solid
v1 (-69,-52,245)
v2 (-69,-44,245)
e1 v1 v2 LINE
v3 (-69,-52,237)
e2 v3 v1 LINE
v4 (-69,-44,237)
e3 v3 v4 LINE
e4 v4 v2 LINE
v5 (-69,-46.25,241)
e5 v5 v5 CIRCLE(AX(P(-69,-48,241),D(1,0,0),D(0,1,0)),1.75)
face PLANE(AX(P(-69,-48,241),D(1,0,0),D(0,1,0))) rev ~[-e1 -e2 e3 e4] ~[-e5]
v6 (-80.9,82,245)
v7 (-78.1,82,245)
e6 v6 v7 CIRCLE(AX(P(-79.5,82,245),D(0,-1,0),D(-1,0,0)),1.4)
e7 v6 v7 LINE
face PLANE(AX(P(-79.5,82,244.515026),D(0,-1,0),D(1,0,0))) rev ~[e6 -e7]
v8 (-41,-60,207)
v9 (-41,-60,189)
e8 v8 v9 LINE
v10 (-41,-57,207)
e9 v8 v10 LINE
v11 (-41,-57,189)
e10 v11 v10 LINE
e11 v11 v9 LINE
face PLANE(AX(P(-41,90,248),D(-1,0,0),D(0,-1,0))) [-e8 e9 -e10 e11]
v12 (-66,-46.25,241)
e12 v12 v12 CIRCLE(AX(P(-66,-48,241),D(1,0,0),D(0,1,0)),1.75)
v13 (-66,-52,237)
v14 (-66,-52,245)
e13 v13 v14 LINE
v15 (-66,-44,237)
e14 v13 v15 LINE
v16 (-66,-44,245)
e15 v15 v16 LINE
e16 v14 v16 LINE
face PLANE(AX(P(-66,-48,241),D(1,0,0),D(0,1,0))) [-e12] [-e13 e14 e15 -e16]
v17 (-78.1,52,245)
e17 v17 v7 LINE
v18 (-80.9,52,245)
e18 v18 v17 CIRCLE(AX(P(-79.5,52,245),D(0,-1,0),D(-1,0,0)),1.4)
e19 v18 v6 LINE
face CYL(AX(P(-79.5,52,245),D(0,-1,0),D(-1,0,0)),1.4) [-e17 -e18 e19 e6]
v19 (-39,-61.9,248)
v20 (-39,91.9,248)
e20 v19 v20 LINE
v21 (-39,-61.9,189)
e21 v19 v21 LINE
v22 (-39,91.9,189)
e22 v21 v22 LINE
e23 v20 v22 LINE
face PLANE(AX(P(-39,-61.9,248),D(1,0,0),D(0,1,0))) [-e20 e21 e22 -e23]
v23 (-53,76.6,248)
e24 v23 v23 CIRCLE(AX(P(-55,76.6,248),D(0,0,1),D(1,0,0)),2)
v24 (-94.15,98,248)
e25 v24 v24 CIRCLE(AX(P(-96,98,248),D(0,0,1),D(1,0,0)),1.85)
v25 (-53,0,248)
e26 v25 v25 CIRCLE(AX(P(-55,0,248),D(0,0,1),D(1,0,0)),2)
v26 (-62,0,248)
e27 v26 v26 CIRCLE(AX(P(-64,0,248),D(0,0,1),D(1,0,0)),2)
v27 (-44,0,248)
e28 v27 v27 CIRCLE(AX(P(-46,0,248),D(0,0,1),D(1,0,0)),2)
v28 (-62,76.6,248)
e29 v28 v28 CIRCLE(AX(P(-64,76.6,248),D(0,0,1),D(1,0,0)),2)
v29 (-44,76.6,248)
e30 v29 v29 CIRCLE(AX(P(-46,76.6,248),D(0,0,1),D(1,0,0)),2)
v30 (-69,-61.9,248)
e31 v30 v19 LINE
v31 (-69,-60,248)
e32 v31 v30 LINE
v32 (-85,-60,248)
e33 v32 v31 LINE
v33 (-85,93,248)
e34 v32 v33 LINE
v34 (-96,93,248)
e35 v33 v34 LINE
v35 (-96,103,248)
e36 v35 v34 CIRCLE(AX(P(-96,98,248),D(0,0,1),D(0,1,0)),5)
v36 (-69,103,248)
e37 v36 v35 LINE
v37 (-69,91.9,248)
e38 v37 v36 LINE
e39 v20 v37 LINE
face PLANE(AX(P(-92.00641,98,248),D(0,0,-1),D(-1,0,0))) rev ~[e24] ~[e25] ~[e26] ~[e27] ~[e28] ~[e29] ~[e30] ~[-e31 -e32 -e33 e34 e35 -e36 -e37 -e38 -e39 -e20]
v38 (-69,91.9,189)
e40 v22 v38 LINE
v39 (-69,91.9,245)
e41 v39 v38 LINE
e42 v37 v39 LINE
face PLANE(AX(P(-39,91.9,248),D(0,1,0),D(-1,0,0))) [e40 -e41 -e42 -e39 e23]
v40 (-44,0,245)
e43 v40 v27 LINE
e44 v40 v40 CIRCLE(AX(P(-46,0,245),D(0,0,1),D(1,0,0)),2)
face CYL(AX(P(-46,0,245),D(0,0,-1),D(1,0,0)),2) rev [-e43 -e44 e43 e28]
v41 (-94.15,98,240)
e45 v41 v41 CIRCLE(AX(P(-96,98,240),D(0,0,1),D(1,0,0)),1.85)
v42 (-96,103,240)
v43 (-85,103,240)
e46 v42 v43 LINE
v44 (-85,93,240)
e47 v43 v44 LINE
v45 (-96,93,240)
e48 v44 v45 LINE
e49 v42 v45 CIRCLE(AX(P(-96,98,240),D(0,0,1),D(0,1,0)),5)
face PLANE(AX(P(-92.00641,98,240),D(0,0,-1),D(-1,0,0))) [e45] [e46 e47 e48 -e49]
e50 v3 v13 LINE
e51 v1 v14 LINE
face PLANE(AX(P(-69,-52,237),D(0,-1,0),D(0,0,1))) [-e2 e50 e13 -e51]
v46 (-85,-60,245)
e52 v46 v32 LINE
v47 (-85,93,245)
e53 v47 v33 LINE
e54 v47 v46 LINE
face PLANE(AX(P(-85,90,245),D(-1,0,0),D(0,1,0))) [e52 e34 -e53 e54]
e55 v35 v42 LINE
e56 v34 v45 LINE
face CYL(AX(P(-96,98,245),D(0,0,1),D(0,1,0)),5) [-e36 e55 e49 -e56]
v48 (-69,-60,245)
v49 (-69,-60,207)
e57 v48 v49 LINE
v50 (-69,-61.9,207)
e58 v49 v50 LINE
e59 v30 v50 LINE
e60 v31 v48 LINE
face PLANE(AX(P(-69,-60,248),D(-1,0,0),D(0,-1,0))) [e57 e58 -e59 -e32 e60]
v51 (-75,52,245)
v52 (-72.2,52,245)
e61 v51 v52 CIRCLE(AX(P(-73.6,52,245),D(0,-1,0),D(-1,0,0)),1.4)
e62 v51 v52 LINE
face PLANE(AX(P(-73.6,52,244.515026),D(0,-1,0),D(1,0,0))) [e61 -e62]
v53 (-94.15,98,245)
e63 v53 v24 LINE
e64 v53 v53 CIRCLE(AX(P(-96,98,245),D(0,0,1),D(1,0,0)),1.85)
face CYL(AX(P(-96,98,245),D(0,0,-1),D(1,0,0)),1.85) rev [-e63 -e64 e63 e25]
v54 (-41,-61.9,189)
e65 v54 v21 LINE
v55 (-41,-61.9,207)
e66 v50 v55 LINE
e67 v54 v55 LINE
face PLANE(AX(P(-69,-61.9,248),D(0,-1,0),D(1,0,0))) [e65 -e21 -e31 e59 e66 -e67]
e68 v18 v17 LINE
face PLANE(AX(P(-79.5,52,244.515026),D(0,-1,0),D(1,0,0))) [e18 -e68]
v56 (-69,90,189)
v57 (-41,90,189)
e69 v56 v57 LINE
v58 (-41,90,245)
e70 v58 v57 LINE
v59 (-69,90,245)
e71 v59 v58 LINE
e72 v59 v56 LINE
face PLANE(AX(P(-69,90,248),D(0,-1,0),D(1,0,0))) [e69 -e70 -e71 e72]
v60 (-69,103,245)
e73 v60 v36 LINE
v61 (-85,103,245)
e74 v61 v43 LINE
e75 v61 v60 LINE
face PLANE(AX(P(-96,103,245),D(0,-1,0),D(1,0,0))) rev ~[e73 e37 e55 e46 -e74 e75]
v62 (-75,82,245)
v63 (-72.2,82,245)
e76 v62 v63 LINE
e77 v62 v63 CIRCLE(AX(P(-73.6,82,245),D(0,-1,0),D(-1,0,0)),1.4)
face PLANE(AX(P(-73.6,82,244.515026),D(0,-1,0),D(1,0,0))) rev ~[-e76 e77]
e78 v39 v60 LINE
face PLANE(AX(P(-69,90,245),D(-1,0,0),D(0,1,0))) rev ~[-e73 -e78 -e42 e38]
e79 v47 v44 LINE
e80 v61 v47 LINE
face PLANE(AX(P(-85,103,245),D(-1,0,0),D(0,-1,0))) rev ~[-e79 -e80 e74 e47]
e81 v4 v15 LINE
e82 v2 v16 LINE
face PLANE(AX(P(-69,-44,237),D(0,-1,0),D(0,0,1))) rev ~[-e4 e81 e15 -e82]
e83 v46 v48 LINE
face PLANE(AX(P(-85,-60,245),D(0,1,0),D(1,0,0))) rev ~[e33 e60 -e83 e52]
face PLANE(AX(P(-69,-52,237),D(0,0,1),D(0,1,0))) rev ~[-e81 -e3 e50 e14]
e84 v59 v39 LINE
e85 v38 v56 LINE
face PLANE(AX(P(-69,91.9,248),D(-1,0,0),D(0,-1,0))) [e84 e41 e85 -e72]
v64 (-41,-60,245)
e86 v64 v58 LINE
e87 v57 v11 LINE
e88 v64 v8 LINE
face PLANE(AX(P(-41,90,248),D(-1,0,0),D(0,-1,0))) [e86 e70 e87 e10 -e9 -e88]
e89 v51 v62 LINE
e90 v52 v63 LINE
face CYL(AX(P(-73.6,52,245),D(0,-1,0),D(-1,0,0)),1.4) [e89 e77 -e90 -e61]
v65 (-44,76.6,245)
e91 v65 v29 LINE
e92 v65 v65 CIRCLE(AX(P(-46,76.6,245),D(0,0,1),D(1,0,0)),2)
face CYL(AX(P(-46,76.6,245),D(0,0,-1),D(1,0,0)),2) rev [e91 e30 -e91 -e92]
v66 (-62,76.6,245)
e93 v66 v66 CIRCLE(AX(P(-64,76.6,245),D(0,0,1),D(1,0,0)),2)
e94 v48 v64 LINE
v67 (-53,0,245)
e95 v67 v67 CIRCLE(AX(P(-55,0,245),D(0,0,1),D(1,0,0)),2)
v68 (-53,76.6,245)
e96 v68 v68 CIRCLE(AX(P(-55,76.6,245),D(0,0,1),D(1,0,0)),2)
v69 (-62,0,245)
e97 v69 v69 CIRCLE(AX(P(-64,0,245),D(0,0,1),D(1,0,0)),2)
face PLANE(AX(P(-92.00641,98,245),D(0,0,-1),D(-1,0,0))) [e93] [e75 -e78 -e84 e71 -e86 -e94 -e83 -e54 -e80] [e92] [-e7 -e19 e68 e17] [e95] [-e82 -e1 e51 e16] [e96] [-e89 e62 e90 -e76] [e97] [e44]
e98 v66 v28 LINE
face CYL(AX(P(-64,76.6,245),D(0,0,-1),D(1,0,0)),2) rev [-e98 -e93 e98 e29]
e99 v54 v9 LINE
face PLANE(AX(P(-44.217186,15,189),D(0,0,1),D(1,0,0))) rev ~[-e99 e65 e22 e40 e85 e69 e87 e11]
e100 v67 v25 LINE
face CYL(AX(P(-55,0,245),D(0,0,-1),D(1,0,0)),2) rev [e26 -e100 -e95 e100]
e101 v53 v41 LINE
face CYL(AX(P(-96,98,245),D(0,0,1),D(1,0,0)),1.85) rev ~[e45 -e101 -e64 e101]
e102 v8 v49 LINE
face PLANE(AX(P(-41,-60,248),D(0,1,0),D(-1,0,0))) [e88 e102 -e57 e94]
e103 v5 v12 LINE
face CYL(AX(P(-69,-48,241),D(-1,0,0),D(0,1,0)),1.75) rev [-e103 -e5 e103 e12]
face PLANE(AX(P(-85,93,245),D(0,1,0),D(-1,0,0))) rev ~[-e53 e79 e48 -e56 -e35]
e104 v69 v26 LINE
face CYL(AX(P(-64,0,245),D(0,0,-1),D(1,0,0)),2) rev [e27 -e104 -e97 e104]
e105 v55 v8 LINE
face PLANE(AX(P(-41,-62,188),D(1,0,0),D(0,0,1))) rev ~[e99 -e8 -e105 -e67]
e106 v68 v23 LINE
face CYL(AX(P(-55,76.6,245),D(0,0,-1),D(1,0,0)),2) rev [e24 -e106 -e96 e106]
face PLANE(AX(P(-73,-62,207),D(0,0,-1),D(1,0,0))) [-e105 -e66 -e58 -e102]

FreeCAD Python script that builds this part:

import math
import FreeCAD as App
import Part
import Sketcher
from FreeCAD import Vector
Q = App.Units.Quantity


def add_polygon(sketch, points):
    """Adds a closed chain of lines whose ends are joined by coincident constraints."""
    first, n = sketch.GeometryCount, len(points)
    for a, b in zip(points, points[1:] + points[:1]):
        sketch.addGeometry(Part.LineSegment(App.Vector(*a, 0), App.Vector(*b, 0)), False)
    for i in range(n):
        sketch.addConstraint(Sketcher.Constraint("Coincident", first + i, 2, first + (i + 1) % n, 1))

doc = App.newDocument("Part")
params = doc.addObject("Spreadsheet::Sheet", "Params")
for row, (alias, value) in enumerate([
    ("sketch1_diameter", "3.5 mm"),
    ("sketch1_width", "8 mm"),
    ("pad1_length", "3 mm"),
    ("sketch2_diameter", "4 mm"),
    ("sketch2_width", "44 mm"),
    ("sketch2_height", "150 mm"),
    ("pad2_length", "3 mm"),
    ("sketch3_width", "28 mm"),
    ("sketch3_width2", "30 mm"),
    ("sketch3_height", "150 mm"),
    ("sketch3_height2", "1.9 mm"),
    ("pad3_length", "59 mm"),
    ("sketch4_radius", "1.4 mm"),
    ("pad4_length", "30 mm"),
    ("sketch5_width", "16 mm"),
    ("sketch5_height", "13 mm"),
    ("pad5_length", "3 mm"),
    ("sketch6_radius", "5 mm"),
    ("sketch6_diameter", "3.7 mm"),
    ("sketch6_width", "11 mm"),
    ("pad6_length", "3 mm"),
    ("pad6_length2", "5 mm"),
    ("sketch7_width", "32 mm"),
    ("sketch7_height", "19 mm"),
    ("pocket1_length", "5 mm"),
], start=1):
    params.set(f"A{row}", alias)
    params.set(f"B{row}", "=" + value)
    params.setAlias(f"B{row}", alias)

body = doc.addObject("PartDesign::Body", "Body")

sketch1 = body.newObject("Sketcher::SketchObject", "Sketch")
sketch1.AttachmentSupport = (doc.getObject("YZ_Plane"), [""])
sketch1.MapMode = "FlatFace"
add_polygon(sketch1, [(-4, 4), (-4, -4), (4, -4), (4, 4)])
sketch1.addGeometry(Part.Circle(Vector(0, 0, 0), Vector(0, 0, 1), 1.8), False)
sketch1.addConstraint(Sketcher.Constraint("Vertical", 0))
sketch1.addConstraint(Sketcher.Constraint("Horizontal", 1))
sketch1.addConstraint(Sketcher.Constraint("Vertical", 2))
sketch1.addConstraint(Sketcher.Constraint("Horizontal", 3))
sketch1.addConstraint(Sketcher.Constraint("Coincident", 4, 3, -1, 1))
sketch1.addConstraint(Sketcher.Constraint("Symmetric", 0, 2, 2, 2, -1, 1))
sketch1.addConstraint(Sketcher.Constraint("Equal", 3, 0))
sketch1.addConstraint(Sketcher.Constraint("Diameter", 4, Q("3.5 mm")))
sketch1.addConstraint(Sketcher.Constraint("DistanceX", 1, 1, 1, 2, Q("8 mm")))
sketch1.setExpression("Constraints[11]", "Params.sketch1_diameter")
sketch1.setExpression("Constraints[12]", "Params.sketch1_width")
pad1 = body.newObject("PartDesign::Pad", "Pad")
pad1.Profile = sketch1
pad1.setExpression("Length", "Params.pad1_length")

sketch2 = body.newObject("Sketcher::SketchObject", "Sketch001")
sketch2.AttachmentSupport = (doc.getObject("XY_Plane"), [""])
sketch2.MapMode = "FlatFace"
sketch2.AttachmentOffset = App.Placement(Vector(0, 0, 4), App.Rotation())
add_polygon(sketch2, [(-16, 138), (-16, -12), (28, -12), (28, 138)])
sketch2.addGeometry(Part.Circle(Vector(5, 48, 0), Vector(0, 0, 1), 2), False)
sketch2.addGeometry(Part.Circle(Vector(14, 48, 0), Vector(0, 0, 1), 2), False)
sketch2.addGeometry(Part.Circle(Vector(23, 48, 0), Vector(0, 0, 1), 2), False)
sketch2.addGeometry(Part.Circle(Vector(5, 124.6, 0), Vector(0, 0, 1), 2), False)
sketch2.addGeometry(Part.Circle(Vector(14, 124.6, 0), Vector(0, 0, 1), 2), False)
sketch2.addGeometry(Part.Circle(Vector(23, 124.6, 0), Vector(0, 0, 1), 2), False)
sketch2.addConstraint(Sketcher.Constraint("Vertical", 0))
sketch2.addConstraint(Sketcher.Constraint("Horizontal", 1))
sketch2.addConstraint(Sketcher.Constraint("Vertical", 2))
sketch2.addConstraint(Sketcher.Constraint("Horizontal", 3))
sketch2.addConstraint(Sketcher.Constraint("Equal", 4, 5))
sketch2.addConstraint(Sketcher.Constraint("Equal", 5, 6))
sketch2.addConstraint(Sketcher.Constraint("Equal", 6, 7))
sketch2.addConstraint(Sketcher.Constraint("Equal", 7, 8))
sketch2.addConstraint(Sketcher.Constraint("Equal", 8, 9))
sketch2.addConstraint(Sketcher.Constraint("Horizontal", 4, 3, 5, 3))
sketch2.addConstraint(Sketcher.Constraint("Horizontal", 5, 3, 6, 3))
sketch2.addConstraint(Sketcher.Constraint("Horizontal", 7, 3, 8, 3))
sketch2.addConstraint(Sketcher.Constraint("Horizontal", 8, 3, 9, 3))
sketch2.addConstraint(Sketcher.Constraint("Vertical", 4, 3, 7, 3))
sketch2.addConstraint(Sketcher.Constraint("Vertical", 5, 3, 8, 3))
sketch2.addConstraint(Sketcher.Constraint("Vertical", 6, 3, 9, 3))
sketch2.addConstraint(Sketcher.Constraint("Diameter", 4, Q("4 mm")))
sketch2.addConstraint(Sketcher.Constraint("DistanceX", 1, 1, 1, 2, Q("44 mm")))
sketch2.addConstraint(Sketcher.Constraint("DistanceY", 0, 2, 0, 1, Q("150 mm")))
sketch2.addConstraint(Sketcher.Constraint("DistanceX", -1, 1, 4, 3, Q("5 mm")))
sketch2.addConstraint(Sketcher.Constraint("DistanceY", -1, 1, 4, 3, Q("48 mm")))
sketch2.addConstraint(Sketcher.Constraint("DistanceX", -1, 1, 5, 3, Q("14 mm")))
sketch2.addConstraint(Sketcher.Constraint("DistanceX", -1, 1, 6, 3, Q("23 mm")))
sketch2.addConstraint(Sketcher.Constraint("DistanceX", 0, 2, -1, 1, Q("16 mm")))
sketch2.addConstraint(Sketcher.Constraint("DistanceY", 0, 2, -1, 1, Q("12 mm")))
sketch2.addConstraint(Sketcher.Constraint("DistanceY", -1, 1, 7, 3, Q("124.6 mm")))
sketch2.setExpression("Constraints[20]", "Params.sketch2_diameter")
sketch2.setExpression("Constraints[21]", "Params.sketch2_width")
sketch2.setExpression("Constraints[22]", "Params.sketch2_height")
pad2 = body.newObject("PartDesign::Pad", "Pad001")
pad2.Profile = sketch2
pad2.setExpression("Length", "Params.pad2_length")

sketch3 = body.newObject("Sketcher::SketchObject", "Sketch002")
sketch3.AttachmentSupport = (doc.getObject("XY_Plane"), [""])
sketch3.MapMode = "FlatFace"
sketch3.AttachmentOffset = App.Placement(Vector(0, 0, 7), App.Rotation())
add_polygon(sketch3, [(0, 139.9), (0, 138), (28, 138), (28, -12), (0, -12), (0, -13.9), (30, -13.9), (30, 139.9)])
sketch3.addConstraint(Sketcher.Constraint("Vertical", 0))
sketch3.addConstraint(Sketcher.Constraint("Horizontal", 1))
sketch3.addConstraint(Sketcher.Constraint("Vertical", 2))
sketch3.addConstraint(Sketcher.Constraint("Horizontal", 3))
sketch3.addConstraint(Sketcher.Constraint("Vertical", 4))
sketch3.addConstraint(Sketcher.Constraint("Horizontal", 5))
sketch3.addConstraint(Sketcher.Constraint("Vertical", 6))
sketch3.addConstraint(Sketcher.Constraint("Horizontal", 7))
sketch3.addConstraint(Sketcher.Constraint("PointOnObject", 0, 2, -2))
sketch3.addConstraint(Sketcher.Constraint("PointOnObject", 3, 2, -2))
sketch3.addConstraint(Sketcher.Constraint("Equal", 0, 4))
sketch3.addConstraint(Sketcher.Constraint("DistanceX", 1, 1, 1, 2, Q("28 mm")))
sketch3.addConstraint(Sketcher.Constraint("DistanceX", 5, 1, 5, 2, Q("30 mm")))
sketch3.addConstraint(Sketcher.Constraint("DistanceY", 2, 2, 2, 1, Q("150 mm")))
sketch3.addConstraint(Sketcher.Constraint("DistanceY", 0, 2, 0, 1, Q("1.9 mm")))
sketch3.addConstraint(Sketcher.Constraint("DistanceY", -1, 1, 0, 2, Q("138 mm")))
sketch3.setExpression("Constraints[19]", "Params.sketch3_width")
sketch3.setExpression("Constraints[20]", "Params.sketch3_width2")
sketch3.setExpression("Constraints[21]", "Params.sketch3_height")
sketch3.setExpression("Constraints[22]", "Params.sketch3_height2")
pad3 = body.newObject("PartDesign::Pad", "Pad002")
pad3.Profile = sketch3
pad3.setExpression("Length", "Params.pad3_length")
pad3.Reversed = True

sketch4 = body.newObject("Sketcher::SketchObject", "Sketch003")
sketch4.AttachmentSupport = (doc.getObject("XZ_Plane"), [""])
sketch4.MapMode = "FlatFace"
sketch4.AttachmentOffset = App.Placement(Vector(0, 0, -100), App.Rotation())
sketch4.addGeometry(Part.ArcOfCircle(Part.Circle(Vector(-4.6, 4, 0), Vector(0, 0, 1), 1.4), math.radians(180), math.radians(360)), False)
sketch4.addGeometry(Part.LineSegment(Vector(-3.2, 4, 0), Vector(-6, 4, 0)), False)
sketch4.addGeometry(Part.ArcOfCircle(Part.Circle(Vector(-10.5, 4, 0), Vector(0, 0, 1), 1.4), math.radians(180), math.radians(360)), False)
sketch4.addGeometry(Part.LineSegment(Vector(-9.1, 4, 0), Vector(-11.9, 4, 0)), False)
sketch4.addConstraint(Sketcher.Constraint("Coincident", 0, 1, 1, 2))
sketch4.addConstraint(Sketcher.Constraint("Coincident", 1, 1, 0, 2))
sketch4.addConstraint(Sketcher.Constraint("Coincident", 2, 1, 3, 2))
sketch4.addConstraint(Sketcher.Constraint("Coincident", 3, 1, 2, 2))
sketch4.addConstraint(Sketcher.Constraint("Horizontal", 1))
sketch4.addConstraint(Sketcher.Constraint("Horizontal", 3))
sketch4.addConstraint(Sketcher.Constraint("Equal", 0, 2))
sketch4.addConstraint(Sketcher.Constraint("Horizontal", 0, 3, 2, 3))
sketch4.addConstraint(Sketcher.Constraint("Horizontal", 2, 3, 0, 1))
sketch4.addConstraint(Sketcher.Constraint("Horizontal", 1, 1, 2, 1))
sketch4.addConstraint(Sketcher.Constraint("Radius", 0, Q("1.4 mm")))
sketch4.addConstraint(Sketcher.Constraint("DistanceY", -1, 1, 0, 3, Q("4 mm")))
sketch4.addConstraint(Sketcher.Constraint("DistanceX", 0, 1, -1, 1, Q("6 mm")))
sketch4.addConstraint(Sketcher.Constraint("DistanceX", 2, 3, -1, 1, Q("10.5 mm")))
sketch4.setExpression("Constraints[10]", "Params.sketch4_radius")
pad4 = body.newObject("PartDesign::Pad", "Pad003")
pad4.Profile = sketch4
pad4.setExpression("Length", "Params.pad4_length")
pad4.Reversed = True

sketch5 = body.newObject("Sketcher::SketchObject", "Sketch004")
sketch5.AttachmentSupport = (doc.getObject("XY_Plane"), [""])
sketch5.MapMode = "FlatFace"
sketch5.AttachmentOffset = App.Placement(Vector(0, 0, 4), App.Rotation())
add_polygon(sketch5, [(-16, 151), (-16, 138), (0, 138), (0, 151)])
sketch5.addConstraint(Sketcher.Constraint("Vertical", 0))
sketch5.addConstraint(Sketcher.Constraint("Horizontal", 1))
sketch5.addConstraint(Sketcher.Constraint("Vertical", 2))
sketch5.addConstraint(Sketcher.Constraint("Horizontal", 3))
sketch5.addConstraint(Sketcher.Constraint("PointOnObject", 1, 2, -2))
sketch5.addConstraint(Sketcher.Constraint("DistanceX", 1, 1, 1, 2, Q("16 mm")))
sketch5.addConstraint(Sketcher.Constraint("DistanceY", 0, 2, 0, 1, Q("13 mm")))
sketch5.addConstraint(Sketcher.Constraint("DistanceY", -1, 1, 0, 2, Q("138 mm")))
sketch5.setExpression("Constraints[9]", "Params.sketch5_width")
sketch5.setExpression("Constraints[10]", "Params.sketch5_height")
pad5 = body.newObject("PartDesign::Pad", "Pad004")
pad5.Profile = sketch5
pad5.setExpression("Length", "Params.pad5_length")

sketch6 = body.newObject("Sketcher::SketchObject", "Sketch005")
sketch6.AttachmentSupport = (doc.getObject("XY_Plane"), [""])
sketch6.MapMode = "FlatFace"
sketch6.AttachmentOffset = App.Placement(Vector(0, 0, 4), App.Rotation())
sketch6.addGeometry(Part.LineSegment(Vector(-27, 141, 0), Vector(-16, 141, 0)), False)
sketch6.addGeometry(Part.LineSegment(Vector(-16, 141, 0), Vector(-16, 151, 0)), False)
sketch6.addGeometry(Part.LineSegment(Vector(-16, 151, 0), Vector(-27, 151, 0)), False)
sketch6.addGeometry(Part.ArcOfCircle(Part.Circle(Vector(-27, 146, 0), Vector(0, 0, 1), 5), math.radians(90), math.radians(270)), False)
sketch6.addGeometry(Part.Circle(Vector(-27, 146, 0), Vector(0, 0, 1), 1.9), False)
sketch6.addConstraint(Sketcher.Constraint("Coincident", 0, 2, 1, 1))
sketch6.addConstraint(Sketcher.Constraint("Coincident", 1, 2, 2, 1))
sketch6.addConstraint(Sketcher.Constraint("Tangent", 2, 2, 3, 1))
sketch6.addConstraint(Sketcher.Constraint("Tangent", 3, 2, 0, 1))
sketch6.addConstraint(Sketcher.Constraint("Horizontal", 0))
sketch6.addConstraint(Sketcher.Constraint("Vertical", 1))
sketch6.addConstraint(Sketcher.Constraint("Horizontal", 2))
sketch6.addConstraint(Sketcher.Constraint("Coincident", 4, 3, 3, 3))
sketch6.addConstraint(Sketcher.Constraint("Radius", 3, Q("5 mm")))
sketch6.addConstraint(Sketcher.Constraint("Diameter", 4, Q("3.7 mm")))
sketch6.addConstraint(Sketcher.Constraint("DistanceX", 0, 1, 0, 2, Q("11 mm")))
sketch6.addConstraint(Sketcher.Constraint("DistanceX", 3, 3, -1, 1, Q("27 mm")))
sketch6.addConstraint(Sketcher.Constraint("DistanceY", -1, 1, 3, 3, Q("146 mm")))
sketch6.setExpression("Constraints[8]", "Params.sketch6_radius")
sketch6.setExpression("Constraints[9]", "Params.sketch6_diameter")
sketch6.setExpression("Constraints[10]", "Params.sketch6_width")
pad6 = body.newObject("PartDesign::Pad", "Pad005")
pad6.Profile = sketch6
pad6.Type = "TwoLengths"
pad6.setExpression("Length", "Params.pad6_length")
pad6.setExpression("Length2", "Params.pad6_length2")

sketch7 = body.newObject("Sketcher::SketchObject", "Sketch006")
sketch7.AttachmentSupport = (doc.getObject("XZ_Plane"), [""])
sketch7.MapMode = "FlatFace"
sketch7.AttachmentOffset = App.Placement(Vector(0, 0, 14), App.Rotation())
add_polygon(sketch7, [(-4, -34), (-4, -53), (28, -53), (28, -34)])
sketch7.addConstraint(Sketcher.Constraint("Vertical", 0))
sketch7.addConstraint(Sketcher.Constraint("Horizontal", 1))
sketch7.addConstraint(Sketcher.Constraint("Vertical", 2))
sketch7.addConstraint(Sketcher.Constraint("Horizontal", 3))
sketch7.addConstraint(Sketcher.Constraint("DistanceX", 1, 1, 1, 2, Q("32 mm")))
sketch7.addConstraint(Sketcher.Constraint("DistanceY", 0, 2, 0, 1, Q("19 mm")))
sketch7.addConstraint(Sketcher.Constraint("DistanceX", 0, 2, -1, 1, Q("4 mm")))
sketch7.addConstraint(Sketcher.Constraint("DistanceY", 0, 2, -1, 1, Q("53 mm")))
sketch7.setExpression("Constraints[8]", "Params.sketch7_width")
sketch7.setExpression("Constraints[9]", "Params.sketch7_height")
pocket1 = body.newObject("PartDesign::Pocket", "Pocket")
pocket1.Profile = sketch7
pocket1.setExpression("Length", "Params.pocket1_length")
body2 = doc.addObject("PartDesign::Body", "Body001")
doc.recompute()

body.Placement = App.Placement(Vector(-69, -48, 241), App.Rotation(Vector(0, 0, 1), 0))
boolean = body2.newObject("PartDesign::Boolean", "Boolean")
boolean.Type = "Fuse"
boolean.addObjects([body])

doc.recompute()
